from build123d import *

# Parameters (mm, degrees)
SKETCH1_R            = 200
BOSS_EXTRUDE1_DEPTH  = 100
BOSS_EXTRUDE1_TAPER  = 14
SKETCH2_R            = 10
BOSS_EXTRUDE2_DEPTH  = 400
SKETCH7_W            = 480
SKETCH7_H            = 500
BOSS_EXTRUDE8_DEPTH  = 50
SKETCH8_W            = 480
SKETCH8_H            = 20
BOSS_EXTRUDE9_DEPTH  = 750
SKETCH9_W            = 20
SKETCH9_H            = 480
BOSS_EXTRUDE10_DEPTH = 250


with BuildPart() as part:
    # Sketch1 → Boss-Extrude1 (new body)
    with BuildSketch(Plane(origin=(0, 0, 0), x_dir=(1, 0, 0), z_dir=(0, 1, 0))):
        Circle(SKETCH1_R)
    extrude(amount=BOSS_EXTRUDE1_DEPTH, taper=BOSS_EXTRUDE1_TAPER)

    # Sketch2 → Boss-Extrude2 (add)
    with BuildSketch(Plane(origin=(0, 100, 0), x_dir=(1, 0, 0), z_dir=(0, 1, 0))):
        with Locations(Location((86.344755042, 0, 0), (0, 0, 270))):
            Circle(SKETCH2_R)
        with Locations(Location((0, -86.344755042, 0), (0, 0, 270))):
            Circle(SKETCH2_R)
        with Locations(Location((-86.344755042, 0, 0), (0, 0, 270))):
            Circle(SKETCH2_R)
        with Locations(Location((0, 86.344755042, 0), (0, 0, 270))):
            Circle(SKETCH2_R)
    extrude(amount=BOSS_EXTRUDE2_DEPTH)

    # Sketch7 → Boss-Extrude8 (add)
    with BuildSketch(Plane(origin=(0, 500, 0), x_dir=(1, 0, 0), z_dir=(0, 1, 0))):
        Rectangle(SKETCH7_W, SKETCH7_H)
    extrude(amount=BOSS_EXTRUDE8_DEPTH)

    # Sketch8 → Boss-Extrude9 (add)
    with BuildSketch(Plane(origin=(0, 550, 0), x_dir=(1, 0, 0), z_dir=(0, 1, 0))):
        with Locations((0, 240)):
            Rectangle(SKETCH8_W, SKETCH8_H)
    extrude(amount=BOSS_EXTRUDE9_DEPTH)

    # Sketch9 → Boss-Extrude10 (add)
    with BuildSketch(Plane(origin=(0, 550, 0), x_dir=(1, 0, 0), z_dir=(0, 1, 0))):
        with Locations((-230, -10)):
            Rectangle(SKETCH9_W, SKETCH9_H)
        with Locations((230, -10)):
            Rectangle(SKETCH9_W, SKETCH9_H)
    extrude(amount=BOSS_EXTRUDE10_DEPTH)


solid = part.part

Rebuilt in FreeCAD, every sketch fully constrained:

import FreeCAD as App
import Part
import Sketcher

V = App.Vector


def add_polygon(sketch, points):
    """Adds a closed chain of lines whose ends are joined by coincident constraints."""
    first, n = sketch.GeometryCount, len(points)
    for a, b in zip(points, points[1:] + points[:1]):
        sketch.addGeometry(Part.LineSegment(App.Vector(*a, 0), App.Vector(*b, 0)), False)
    for i in range(n):
        sketch.addConstraint(Sketcher.Constraint("Coincident", first + i, 2, first + (i + 1) % n, 1))

doc = App.newDocument("Part")
params = doc.addObject("Spreadsheet::Sheet", "Params")
for row, (alias, value) in enumerate([
    ("sketch1_diameter", "400 mm"),
    ("pad1_length", "100 mm"),
    ("pad1_taper", "-14 deg"),
    ("sketch2_diameter", "20 mm"),
    ("pad2_length", "400 mm"),
    ("sketch3_width", "480 mm"),
    ("sketch3_height", "500 mm"),
    ("pad3_length", "50 mm"),
    ("sketch4_width", "480 mm"),
    ("sketch4_height", "20 mm"),
    ("pad4_length", "750 mm"),
    ("sketch5_width", "20 mm"),
    ("sketch5_height", "480 mm"),
    ("pad5_length", "250 mm"),
], start=1):
    params.set(f"A{row}", alias)
    params.set(f"B{row}", "=" + value)
    params.setAlias(f"B{row}", alias)

body = doc.addObject("PartDesign::Body", "Body")

# Sketch on XZ plane
sketch1 = body.newObject("Sketcher::SketchObject", "Sketch")
sketch1.AttachmentSupport = (doc.getObject("XZ_Plane"), [""])
sketch1.MapMode = "FlatFace"
sketch1.addGeometry(Part.Circle(V(0, 0, 0), V(0, 0, 1), 200), False)
sketch1.addConstraint([
    Sketcher.Constraint("Coincident", 0, 3, -1, 1),
    Sketcher.Constraint("Diameter", 0, 400.0),
])
sketch1.setExpression("Constraints[1]", "Params.sketch1_diameter")
pad1 = body.newObject("PartDesign::Pad", "Pad")
pad1.Profile = sketch1
pad1.setExpression("Length", "Params.pad1_length")
pad1.Reversed = True
pad1.setExpression("TaperAngle", "Params.pad1_taper")

# Sketch on XZ plane
sketch2 = body.newObject("Sketcher::SketchObject", "Sketch001")
sketch2.AttachmentSupport = (doc.getObject("XZ_Plane"), [""])
sketch2.MapMode = "FlatFace"
sketch2.AttachmentOffset = App.Placement(V(0, 0, -100), App.Rotation())
sketch2.addGeometry([
    Part.Circle(V(86.344755, 0, 0), V(0, 0, 1), 10),
    Part.Circle(V(0, 86.344755, 0), V(0, 0, 1), 10),
    Part.Circle(V(-86.344755, 0, 0), V(0, 0, 1), 10),
    Part.Circle(V(0, -86.344755, 0), V(0, 0, 1), 10),
], False)
sketch2.addConstraint([
    Sketcher.Constraint("Equal", 0, 1),
    Sketcher.Constraint("Equal", 1, 2),
    Sketcher.Constraint("Equal", 2, 3),
    Sketcher.Constraint("Symmetric", 0, 3, 2, 3, -1, 1),
    Sketcher.Constraint("Symmetric", 1, 3, 3, 3, -1, 1),
    Sketcher.Constraint("PointOnObject", 0, 3, -1),
    Sketcher.Constraint("PointOnObject", 1, 3, -2),
    Sketcher.Constraint("Diameter", 0, 20.0),
    Sketcher.Constraint("DistanceX", 2, 3, 0, 3, 172.68951),
    Sketcher.Constraint("DistanceY", 3, 3, 1, 3, 172.68951),
])
sketch2.setExpression("Constraints[7]", "Params.sketch2_diameter")
pad2 = body.newObject("PartDesign::Pad", "Pad001")
pad2.Profile = sketch2
pad2.setExpression("Length", "Params.pad2_length")
pad2.Reversed = True

# Sketch on XZ plane
sketch3 = body.newObject("Sketcher::SketchObject", "Sketch002")
sketch3.AttachmentSupport = (doc.getObject("XZ_Plane"), [""])
sketch3.MapMode = "FlatFace"
sketch3.AttachmentOffset = App.Placement(V(0, 0, -500), App.Rotation())
add_polygon(sketch3, [(-240, -250), (-240, 250), (240, 250), (240, -250)])  # lines 0-3
sketch3.addConstraint([
    Sketcher.Constraint("Vertical", 0),
    Sketcher.Constraint("Horizontal", 1),
    Sketcher.Constraint("Vertical", 2),
    Sketcher.Constraint("Horizontal", 3),
    Sketcher.Constraint("Symmetric", 0, 2, 2, 2, -1, 1),
    Sketcher.Constraint("DistanceX", 1, 1, 1, 2, 480.0),
    Sketcher.Constraint("DistanceY", 0, 1, 0, 2, 500.0),
])
sketch3.setExpression("Constraints[9]", "Params.sketch3_width")
sketch3.setExpression("Constraints[10]", "Params.sketch3_height")
pad3 = body.newObject("PartDesign::Pad", "Pad002")
pad3.Profile = sketch3
pad3.setExpression("Length", "Params.pad3_length")
pad3.Reversed = True

# Sketch on XZ plane
sketch4 = body.newObject("Sketcher::SketchObject", "Sketch003")
sketch4.AttachmentSupport = (doc.getObject("XZ_Plane"), [""])
sketch4.MapMode = "FlatFace"
sketch4.AttachmentOffset = App.Placement(V(0, 0, -550), App.Rotation())
add_polygon(sketch4, [(-240, -250), (-240, -230), (240, -230), (240, -250)])  # lines 0-3
sketch4.addConstraint([
    Sketcher.Constraint("Vertical", 0),
    Sketcher.Constraint("Horizontal", 1),
    Sketcher.Constraint("Vertical", 2),
    Sketcher.Constraint("Horizontal", 3),
    Sketcher.Constraint("DistanceX", 1, 1, 1, 2, 480.0),
    Sketcher.Constraint("DistanceY", 0, 1, 0, 2, 20.0),
    Sketcher.Constraint("DistanceX", 0, 2, -1, 1, 240.0),
    Sketcher.Constraint("DistanceY", 0, 2, -1, 1, 230.0),
])
sketch4.setExpression("Constraints[8]", "Params.sketch4_width")
sketch4.setExpression("Constraints[9]", "Params.sketch4_height")
pad4 = body.newObject("PartDesign::Pad", "Pad003")
pad4.Profile = sketch4
pad4.setExpression("Length", "Params.pad4_length")
pad4.Reversed = True

# Sketch on XZ plane
sketch5 = body.newObject("Sketcher::SketchObject", "Sketch004")
sketch5.AttachmentSupport = (doc.getObject("XZ_Plane"), [""])
sketch5.MapMode = "FlatFace"
sketch5.AttachmentOffset = App.Placement(V(0, 0, -550), App.Rotation())
add_polygon(sketch5, [(-240, -230), (-240, 250), (-220, 250), (-220, -230)])  # lines 0-3
add_polygon(sketch5, [(220, -230), (220, 250), (240, 250), (240, -230)])  # lines 4-7
sketch5.addConstraint([
    Sketcher.Constraint("Vertical", 0),
    Sketcher.Constraint("Horizontal", 1),
    Sketcher.Constraint("Vertical", 2),
    Sketcher.Constraint("Horizontal", 3),
    Sketcher.Constraint("Vertical", 4),
    Sketcher.Constraint("Horizontal", 5),
    Sketcher.Constraint("Vertical", 6),
    Sketcher.Constraint("Horizontal", 7),
    Sketcher.Constraint("Symmetric", 1, 2, 4, 2, -2),
    Sketcher.Constraint("Symmetric", 3, 2, 6, 2, -2),
    Sketcher.Constraint("DistanceX", 1, 1, 1, 2, 20.0),
    Sketcher.Constraint("DistanceY", 0, 1, 0, 2, 480.0),
    Sketcher.Constraint("DistanceX", 0, 2, -1, 1, 240.0),
    Sketcher.Constraint("DistanceY", -1, 1, 0, 2, 250.0),
])
sketch5.setExpression("Constraints[18]", "Params.sketch5_width")
sketch5.setExpression("Constraints[19]", "Params.sketch5_height")
pad5 = body.newObject("PartDesign::Pad", "Pad004")
pad5.Profile = sketch5
pad5.setExpression("Length", "Params.pad5_length")
pad5.Reversed = True

doc.recompute()
